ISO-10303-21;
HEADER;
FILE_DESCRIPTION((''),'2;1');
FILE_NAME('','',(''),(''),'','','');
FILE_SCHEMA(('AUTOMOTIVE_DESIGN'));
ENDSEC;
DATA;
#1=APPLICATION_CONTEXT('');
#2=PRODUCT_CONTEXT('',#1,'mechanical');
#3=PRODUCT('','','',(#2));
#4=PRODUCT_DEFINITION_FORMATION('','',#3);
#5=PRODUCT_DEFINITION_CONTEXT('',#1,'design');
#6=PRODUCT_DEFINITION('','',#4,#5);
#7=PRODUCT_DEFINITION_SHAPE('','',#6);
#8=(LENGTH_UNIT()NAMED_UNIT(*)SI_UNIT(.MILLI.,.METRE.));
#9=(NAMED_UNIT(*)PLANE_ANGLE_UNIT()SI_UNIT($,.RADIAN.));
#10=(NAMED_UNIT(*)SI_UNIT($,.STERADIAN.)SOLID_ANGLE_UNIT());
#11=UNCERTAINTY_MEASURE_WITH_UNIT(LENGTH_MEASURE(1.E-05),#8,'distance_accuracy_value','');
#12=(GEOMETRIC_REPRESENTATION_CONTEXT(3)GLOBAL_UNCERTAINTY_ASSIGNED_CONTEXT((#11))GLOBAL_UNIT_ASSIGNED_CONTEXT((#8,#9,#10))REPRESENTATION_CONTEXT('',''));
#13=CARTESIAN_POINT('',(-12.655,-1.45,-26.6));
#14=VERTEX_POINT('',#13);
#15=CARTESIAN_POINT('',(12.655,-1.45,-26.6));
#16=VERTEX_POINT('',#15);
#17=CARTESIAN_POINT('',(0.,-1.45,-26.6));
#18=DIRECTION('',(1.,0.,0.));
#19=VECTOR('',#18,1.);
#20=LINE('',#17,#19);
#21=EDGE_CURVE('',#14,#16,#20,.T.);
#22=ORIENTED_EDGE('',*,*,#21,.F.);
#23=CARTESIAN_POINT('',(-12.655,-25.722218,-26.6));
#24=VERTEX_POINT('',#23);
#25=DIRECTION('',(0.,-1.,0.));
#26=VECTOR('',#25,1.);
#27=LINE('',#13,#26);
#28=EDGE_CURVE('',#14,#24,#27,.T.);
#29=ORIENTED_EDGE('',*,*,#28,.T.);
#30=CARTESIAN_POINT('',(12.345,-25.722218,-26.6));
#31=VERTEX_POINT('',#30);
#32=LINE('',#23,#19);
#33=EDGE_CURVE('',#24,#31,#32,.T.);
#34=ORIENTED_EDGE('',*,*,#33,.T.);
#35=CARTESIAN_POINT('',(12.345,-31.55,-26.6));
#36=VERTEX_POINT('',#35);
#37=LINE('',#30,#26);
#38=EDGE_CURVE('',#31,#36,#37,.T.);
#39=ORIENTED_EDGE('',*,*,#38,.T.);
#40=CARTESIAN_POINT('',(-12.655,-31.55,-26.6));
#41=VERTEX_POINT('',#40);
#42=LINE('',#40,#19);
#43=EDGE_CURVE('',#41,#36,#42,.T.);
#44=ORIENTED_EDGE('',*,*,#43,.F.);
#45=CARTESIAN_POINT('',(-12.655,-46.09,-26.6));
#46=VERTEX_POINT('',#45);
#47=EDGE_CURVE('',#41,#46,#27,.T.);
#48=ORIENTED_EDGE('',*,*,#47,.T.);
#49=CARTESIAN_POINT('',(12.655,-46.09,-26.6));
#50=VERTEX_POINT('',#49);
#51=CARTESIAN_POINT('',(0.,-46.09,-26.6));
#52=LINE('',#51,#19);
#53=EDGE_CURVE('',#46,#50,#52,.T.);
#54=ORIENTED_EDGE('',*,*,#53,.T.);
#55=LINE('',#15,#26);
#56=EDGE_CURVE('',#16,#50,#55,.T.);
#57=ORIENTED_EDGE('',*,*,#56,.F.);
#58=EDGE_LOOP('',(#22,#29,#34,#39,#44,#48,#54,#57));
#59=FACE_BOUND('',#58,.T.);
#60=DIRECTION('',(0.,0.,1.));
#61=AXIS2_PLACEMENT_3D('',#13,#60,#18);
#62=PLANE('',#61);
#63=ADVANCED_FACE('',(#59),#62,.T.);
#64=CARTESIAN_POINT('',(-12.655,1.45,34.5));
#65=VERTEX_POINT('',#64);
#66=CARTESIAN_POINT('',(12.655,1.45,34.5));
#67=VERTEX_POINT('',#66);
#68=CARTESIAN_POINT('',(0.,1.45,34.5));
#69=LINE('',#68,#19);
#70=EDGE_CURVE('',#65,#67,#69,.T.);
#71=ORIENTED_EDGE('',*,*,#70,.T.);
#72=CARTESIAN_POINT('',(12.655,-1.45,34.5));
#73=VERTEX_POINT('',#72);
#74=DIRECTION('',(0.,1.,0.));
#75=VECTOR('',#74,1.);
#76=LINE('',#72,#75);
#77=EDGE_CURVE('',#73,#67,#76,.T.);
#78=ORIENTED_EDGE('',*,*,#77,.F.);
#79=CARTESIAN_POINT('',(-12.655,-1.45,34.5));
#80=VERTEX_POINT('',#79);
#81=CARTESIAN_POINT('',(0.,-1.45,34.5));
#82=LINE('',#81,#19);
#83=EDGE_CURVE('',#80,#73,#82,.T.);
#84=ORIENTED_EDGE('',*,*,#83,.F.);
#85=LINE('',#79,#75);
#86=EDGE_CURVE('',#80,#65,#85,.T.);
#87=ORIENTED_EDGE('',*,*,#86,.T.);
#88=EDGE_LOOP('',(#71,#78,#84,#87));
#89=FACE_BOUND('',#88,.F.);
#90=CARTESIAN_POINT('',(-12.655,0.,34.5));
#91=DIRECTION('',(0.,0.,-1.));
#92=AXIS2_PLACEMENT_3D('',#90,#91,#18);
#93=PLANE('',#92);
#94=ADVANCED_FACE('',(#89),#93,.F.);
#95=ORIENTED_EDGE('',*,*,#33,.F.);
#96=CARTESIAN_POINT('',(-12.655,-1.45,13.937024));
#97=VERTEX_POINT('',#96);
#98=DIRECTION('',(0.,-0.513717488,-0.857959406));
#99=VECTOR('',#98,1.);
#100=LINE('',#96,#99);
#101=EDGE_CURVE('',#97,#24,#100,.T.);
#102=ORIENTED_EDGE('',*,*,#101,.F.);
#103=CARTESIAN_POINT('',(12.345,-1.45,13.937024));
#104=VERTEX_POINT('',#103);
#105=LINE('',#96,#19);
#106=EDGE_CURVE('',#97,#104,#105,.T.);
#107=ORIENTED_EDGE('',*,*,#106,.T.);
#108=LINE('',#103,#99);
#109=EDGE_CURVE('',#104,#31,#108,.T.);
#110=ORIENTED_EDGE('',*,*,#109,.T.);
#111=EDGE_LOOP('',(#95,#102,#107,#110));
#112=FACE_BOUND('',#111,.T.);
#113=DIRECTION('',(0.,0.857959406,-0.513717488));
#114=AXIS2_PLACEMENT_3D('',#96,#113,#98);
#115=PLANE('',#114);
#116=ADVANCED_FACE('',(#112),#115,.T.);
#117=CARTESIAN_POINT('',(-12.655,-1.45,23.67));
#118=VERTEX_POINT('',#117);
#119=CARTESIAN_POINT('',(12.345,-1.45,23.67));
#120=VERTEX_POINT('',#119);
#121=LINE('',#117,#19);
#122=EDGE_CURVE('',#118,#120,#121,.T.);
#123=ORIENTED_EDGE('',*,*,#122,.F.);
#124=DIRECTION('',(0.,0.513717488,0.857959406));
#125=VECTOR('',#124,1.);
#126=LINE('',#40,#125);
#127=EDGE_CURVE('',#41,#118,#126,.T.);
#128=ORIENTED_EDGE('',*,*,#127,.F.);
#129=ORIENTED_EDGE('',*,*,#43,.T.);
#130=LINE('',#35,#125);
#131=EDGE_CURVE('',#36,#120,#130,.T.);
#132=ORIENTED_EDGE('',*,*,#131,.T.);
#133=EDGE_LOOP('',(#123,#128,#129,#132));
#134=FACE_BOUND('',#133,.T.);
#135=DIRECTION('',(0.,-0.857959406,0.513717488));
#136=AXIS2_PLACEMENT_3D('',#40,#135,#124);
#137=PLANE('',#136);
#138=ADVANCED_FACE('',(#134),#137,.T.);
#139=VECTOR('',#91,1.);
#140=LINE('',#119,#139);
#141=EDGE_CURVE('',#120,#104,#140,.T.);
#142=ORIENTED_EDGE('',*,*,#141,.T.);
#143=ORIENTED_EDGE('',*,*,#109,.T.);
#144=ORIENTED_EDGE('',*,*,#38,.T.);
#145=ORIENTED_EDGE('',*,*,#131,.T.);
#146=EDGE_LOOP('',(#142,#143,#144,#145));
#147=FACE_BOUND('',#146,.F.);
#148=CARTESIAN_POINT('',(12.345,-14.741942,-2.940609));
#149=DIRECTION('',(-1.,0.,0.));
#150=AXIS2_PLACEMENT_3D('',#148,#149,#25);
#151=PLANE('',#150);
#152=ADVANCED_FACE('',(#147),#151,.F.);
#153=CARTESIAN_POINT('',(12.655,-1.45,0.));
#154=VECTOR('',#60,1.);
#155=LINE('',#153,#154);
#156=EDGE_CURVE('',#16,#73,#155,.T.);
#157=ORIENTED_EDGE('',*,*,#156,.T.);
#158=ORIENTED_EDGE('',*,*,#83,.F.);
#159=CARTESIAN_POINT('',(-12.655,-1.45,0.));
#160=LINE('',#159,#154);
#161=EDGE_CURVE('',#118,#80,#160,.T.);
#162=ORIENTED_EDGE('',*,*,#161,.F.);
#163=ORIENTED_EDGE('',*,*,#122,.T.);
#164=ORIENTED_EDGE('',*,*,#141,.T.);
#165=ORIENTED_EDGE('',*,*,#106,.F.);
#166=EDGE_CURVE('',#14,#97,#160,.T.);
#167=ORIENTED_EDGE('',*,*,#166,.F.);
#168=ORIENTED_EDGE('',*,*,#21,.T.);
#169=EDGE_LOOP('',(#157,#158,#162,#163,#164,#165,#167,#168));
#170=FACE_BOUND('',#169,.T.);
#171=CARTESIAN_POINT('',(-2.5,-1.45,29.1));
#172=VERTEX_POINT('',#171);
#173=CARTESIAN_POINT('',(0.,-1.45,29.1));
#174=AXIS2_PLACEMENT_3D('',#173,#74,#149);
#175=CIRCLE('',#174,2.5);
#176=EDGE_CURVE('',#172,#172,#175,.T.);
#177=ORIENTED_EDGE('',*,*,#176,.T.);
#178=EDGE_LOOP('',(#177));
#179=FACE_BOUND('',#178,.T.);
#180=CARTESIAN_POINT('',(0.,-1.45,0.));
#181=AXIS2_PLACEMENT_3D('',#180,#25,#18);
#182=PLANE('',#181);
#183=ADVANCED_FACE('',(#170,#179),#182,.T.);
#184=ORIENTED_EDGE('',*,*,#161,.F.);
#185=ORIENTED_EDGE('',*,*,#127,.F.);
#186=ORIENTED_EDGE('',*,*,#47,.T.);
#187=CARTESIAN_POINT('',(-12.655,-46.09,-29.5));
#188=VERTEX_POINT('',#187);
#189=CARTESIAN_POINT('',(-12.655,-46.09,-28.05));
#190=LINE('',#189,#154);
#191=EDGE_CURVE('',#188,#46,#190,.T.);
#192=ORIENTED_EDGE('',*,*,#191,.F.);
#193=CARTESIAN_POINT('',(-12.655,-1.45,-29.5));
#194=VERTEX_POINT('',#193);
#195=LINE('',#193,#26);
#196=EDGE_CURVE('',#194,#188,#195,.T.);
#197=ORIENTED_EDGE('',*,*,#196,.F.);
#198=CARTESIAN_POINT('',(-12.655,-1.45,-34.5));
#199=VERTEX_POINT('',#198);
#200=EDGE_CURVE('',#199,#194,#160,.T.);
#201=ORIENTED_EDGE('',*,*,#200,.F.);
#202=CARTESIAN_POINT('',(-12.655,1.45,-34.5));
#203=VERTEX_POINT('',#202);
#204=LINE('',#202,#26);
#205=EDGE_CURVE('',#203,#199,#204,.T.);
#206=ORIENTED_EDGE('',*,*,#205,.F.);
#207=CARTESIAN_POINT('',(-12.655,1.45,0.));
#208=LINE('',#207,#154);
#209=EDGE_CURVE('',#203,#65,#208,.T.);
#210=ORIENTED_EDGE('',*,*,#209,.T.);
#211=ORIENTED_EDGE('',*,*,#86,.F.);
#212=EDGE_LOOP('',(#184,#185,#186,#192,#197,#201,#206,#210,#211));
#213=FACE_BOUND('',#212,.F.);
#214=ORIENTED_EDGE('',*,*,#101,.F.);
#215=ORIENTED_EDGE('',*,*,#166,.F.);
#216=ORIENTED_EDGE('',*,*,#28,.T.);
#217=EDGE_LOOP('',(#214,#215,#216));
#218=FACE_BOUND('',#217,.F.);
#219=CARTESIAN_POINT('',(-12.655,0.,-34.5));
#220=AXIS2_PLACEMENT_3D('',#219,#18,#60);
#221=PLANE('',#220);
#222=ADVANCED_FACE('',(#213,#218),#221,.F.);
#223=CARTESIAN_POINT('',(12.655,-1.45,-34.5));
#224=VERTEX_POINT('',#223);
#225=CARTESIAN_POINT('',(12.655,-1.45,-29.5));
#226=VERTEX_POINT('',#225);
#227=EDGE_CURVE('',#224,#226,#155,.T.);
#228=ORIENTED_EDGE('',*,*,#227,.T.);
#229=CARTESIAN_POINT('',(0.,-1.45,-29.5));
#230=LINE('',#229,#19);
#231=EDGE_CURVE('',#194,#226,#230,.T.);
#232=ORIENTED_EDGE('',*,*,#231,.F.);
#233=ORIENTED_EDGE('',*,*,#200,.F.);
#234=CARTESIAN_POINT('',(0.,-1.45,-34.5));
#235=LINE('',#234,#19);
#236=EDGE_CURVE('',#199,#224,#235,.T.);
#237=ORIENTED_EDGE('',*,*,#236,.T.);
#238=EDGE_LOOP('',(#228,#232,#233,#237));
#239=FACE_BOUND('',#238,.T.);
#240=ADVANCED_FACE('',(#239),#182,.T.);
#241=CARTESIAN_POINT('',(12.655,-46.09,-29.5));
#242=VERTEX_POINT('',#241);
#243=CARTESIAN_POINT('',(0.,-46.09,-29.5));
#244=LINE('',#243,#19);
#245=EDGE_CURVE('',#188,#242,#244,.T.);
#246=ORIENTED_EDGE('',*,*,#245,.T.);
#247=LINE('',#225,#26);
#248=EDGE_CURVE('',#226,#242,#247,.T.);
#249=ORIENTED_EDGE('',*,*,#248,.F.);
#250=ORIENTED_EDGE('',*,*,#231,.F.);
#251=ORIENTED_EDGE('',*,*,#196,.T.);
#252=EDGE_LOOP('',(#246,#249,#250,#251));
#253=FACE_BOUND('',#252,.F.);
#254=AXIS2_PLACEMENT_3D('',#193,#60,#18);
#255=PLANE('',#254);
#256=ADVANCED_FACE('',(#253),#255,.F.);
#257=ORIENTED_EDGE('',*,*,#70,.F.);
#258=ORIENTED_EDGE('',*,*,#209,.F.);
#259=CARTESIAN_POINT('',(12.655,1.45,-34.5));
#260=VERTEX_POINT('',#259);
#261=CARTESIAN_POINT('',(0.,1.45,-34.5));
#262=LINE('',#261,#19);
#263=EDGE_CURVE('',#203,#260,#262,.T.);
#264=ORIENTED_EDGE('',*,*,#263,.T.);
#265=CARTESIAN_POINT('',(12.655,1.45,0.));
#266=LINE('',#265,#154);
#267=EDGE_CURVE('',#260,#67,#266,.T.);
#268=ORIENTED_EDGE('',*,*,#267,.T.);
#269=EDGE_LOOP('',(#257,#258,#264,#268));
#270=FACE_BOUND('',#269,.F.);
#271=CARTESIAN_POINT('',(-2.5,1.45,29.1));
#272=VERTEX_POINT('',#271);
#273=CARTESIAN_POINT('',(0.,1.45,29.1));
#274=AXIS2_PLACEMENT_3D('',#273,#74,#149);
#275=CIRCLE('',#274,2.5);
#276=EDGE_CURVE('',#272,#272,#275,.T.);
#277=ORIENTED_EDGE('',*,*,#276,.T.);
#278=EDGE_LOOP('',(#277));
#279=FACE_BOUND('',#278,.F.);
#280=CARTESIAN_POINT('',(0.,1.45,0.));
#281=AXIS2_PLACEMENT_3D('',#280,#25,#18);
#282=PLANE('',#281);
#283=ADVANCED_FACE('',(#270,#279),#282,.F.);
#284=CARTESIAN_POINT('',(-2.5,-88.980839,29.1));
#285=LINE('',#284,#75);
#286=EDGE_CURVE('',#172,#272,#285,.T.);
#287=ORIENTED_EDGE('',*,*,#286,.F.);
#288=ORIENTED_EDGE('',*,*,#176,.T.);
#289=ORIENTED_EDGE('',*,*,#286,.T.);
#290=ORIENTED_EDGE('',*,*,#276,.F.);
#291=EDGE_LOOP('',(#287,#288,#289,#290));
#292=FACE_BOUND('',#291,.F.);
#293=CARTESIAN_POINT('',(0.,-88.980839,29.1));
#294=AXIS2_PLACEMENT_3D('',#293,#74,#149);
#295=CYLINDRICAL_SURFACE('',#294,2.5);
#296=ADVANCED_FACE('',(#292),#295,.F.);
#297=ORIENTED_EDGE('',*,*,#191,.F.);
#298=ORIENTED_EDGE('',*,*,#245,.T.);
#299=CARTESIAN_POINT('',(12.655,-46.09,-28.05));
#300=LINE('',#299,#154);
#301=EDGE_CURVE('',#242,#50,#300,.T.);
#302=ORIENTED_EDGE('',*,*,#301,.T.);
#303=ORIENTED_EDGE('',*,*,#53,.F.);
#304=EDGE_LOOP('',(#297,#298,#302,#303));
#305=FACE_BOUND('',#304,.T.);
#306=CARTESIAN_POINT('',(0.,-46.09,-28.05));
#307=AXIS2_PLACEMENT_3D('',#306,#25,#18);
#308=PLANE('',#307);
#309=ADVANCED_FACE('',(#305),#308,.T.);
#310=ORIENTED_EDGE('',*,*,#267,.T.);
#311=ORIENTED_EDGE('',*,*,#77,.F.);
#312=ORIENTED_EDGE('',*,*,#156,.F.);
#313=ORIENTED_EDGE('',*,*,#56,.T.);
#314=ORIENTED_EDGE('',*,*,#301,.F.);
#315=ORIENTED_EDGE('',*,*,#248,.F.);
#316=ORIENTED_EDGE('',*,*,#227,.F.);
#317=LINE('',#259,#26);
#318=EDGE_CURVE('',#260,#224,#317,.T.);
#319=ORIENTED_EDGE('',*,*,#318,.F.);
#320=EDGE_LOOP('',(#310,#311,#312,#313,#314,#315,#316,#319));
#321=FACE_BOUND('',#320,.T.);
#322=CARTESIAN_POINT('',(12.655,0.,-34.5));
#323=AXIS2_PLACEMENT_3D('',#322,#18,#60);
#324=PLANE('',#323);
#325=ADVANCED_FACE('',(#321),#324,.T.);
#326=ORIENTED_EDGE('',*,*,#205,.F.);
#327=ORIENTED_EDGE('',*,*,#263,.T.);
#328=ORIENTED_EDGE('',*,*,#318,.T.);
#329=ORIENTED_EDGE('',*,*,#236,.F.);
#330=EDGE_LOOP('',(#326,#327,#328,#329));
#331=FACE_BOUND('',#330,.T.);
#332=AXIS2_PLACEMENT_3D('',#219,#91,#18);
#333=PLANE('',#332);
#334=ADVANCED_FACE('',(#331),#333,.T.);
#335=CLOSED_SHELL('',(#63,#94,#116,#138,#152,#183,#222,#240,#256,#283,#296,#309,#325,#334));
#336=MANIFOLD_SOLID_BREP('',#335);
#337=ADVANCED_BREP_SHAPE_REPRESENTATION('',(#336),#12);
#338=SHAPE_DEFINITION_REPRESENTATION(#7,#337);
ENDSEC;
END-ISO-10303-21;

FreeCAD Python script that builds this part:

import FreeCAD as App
import Part
import Sketcher


def add_polygon(sketch, points):
    """Adds a closed chain of lines whose ends are joined by coincident constraints."""
    first, n = sketch.GeometryCount, len(points)
    for a, b in zip(points, points[1:] + points[:1]):
        sketch.addGeometry(Part.LineSegment(App.Vector(*a, 0), App.Vector(*b, 0)), False)
    for i in range(n):
        sketch.addConstraint(Sketcher.Constraint("Coincident", first + i, 2, first + (i + 1) % n, 1))

doc = App.newDocument("Part")
body = doc.addObject("PartDesign::Body", "Body")

# Sketch on XZ plane
sketch1 = body.newObject("Sketcher::SketchObject", "Sketch")
sketch1.AttachmentSupport = (doc.getObject("XZ_Plane"), [""])
sketch1.MapMode = "FlatFace"
add_polygon(sketch1, [(-12.655, 34.5), (-12.655, -34.5), (12.655, -34.5), (12.655, 34.5)])  # lines 0-3
sketch1.addConstraint([
    Sketcher.Constraint("Vertical", 0),
    Sketcher.Constraint("Horizontal", 1),
    Sketcher.Constraint("Vertical", 2),
    Sketcher.Constraint("Horizontal", 3),
    Sketcher.Constraint("Symmetric", 0, 2, 2, 2, -1, 1),
    Sketcher.Constraint("DistanceY", 0, 2, 0, 1, 69.0),
    Sketcher.Constraint("DistanceX", 1, 1, 1, 2, 25.31),
])
pad1 = body.newObject("PartDesign::Pad", "Pad")
pad1.Profile = sketch1
pad1.Length = 2.9
pad1.Midplane = True

# Sketch on XZ plane
sketch2 = body.newObject("Sketcher::SketchObject", "Sketch001")
sketch2.AttachmentSupport = (doc.getObject("XZ_Plane"), [""])
sketch2.MapMode = "FlatFace"
sketch2.AttachmentOffset = App.Placement(App.Vector(0, 0, 1.45), App.Rotation())
add_polygon(sketch2, [(-12.655, -26.6), (-12.655, -29.5), (12.655, -29.5), (12.655, -26.6)])  # lines 0-3
sketch2.addConstraint([
    Sketcher.Constraint("Vertical", 0),
    Sketcher.Constraint("Horizontal", 1),
    Sketcher.Constraint("Vertical", 2),
    Sketcher.Constraint("Horizontal", 3),
    Sketcher.Constraint("DistanceY", 0, 2, 0, 1, 2.9),
    Sketcher.Constraint("DistanceX", 1, 1, 1, 2, 25.31),
    Sketcher.Constraint("DistanceY", 0, 2, -1, 1, 29.5),
    Sketcher.Constraint("DistanceX", 0, 2, -1, 1, 12.655),
])
pad2 = body.newObject("PartDesign::Pad", "Pad001")
pad2.Profile = sketch2
pad2.Length = 44.64

# Sketch on YZ plane
sketch3 = body.newObject("Sketcher::SketchObject", "Sketch002")
sketch3.AttachmentSupport = (doc.getObject("YZ_Plane"), [""])
sketch3.MapMode = "FlatFace"
sketch3.AttachmentOffset = App.Placement(App.Vector(0, 0, -12.655), App.Rotation())
add_polygon(sketch3, [(-25.722218, -26.6), (-31.55, -26.6), (-1.45, 23.67), (-1.45, 13.937024)])  # lines 0-3
sketch3.addConstraint([
    Sketcher.Constraint("Horizontal", 0),
    Sketcher.Constraint("Vertical", 2),
    Sketcher.Constraint("Parallel", 1, 3),
    Sketcher.Constraint("DistanceY", 0, 2, -1, 1, 26.6),
    Sketcher.Constraint("DistanceX", 0, 2, 1, 2, 30.1),
    Sketcher.Constraint("DistanceX", 0, 2, -1, 1, 31.55),
    Sketcher.Constraint("DistanceY", -1, 1, 1, 2, 23.67),
    Sketcher.Constraint("DistanceX", 0, 2, 0, 1, 5.827782),
])
pad3 = body.newObject("PartDesign::Pad", "Pad002")
pad3.Profile = sketch3
pad3.Length = 25

# Sketch on XZ plane
sketch4 = body.newObject("Sketcher::SketchObject", "Sketch003")
sketch4.AttachmentSupport = (doc.getObject("XZ_Plane"), [""])
sketch4.MapMode = "FlatFace"
sketch4.AttachmentOffset = App.Placement(App.Vector(0, 0, 1.45), App.Rotation())
sketch4.addGeometry(Part.Circle(App.Vector(0, 29.1, 0), App.Vector(0, 0, 1), 2.5), False)
sketch4.addConstraint([
    Sketcher.Constraint("PointOnObject", 0, 3, -2),
    Sketcher.Constraint("Diameter", 0, 5.0),
    Sketcher.Constraint("DistanceY", -1, 1, 0, 3, 29.1),
])
doc.recompute()
hole = body.newObject("PartDesign::Hole", "Hole")
hole.Profile = sketch4
hole.ThreadType = "None"
hole.Diameter = 5
hole.DepthType = "ThroughAll"

doc.recompute()
